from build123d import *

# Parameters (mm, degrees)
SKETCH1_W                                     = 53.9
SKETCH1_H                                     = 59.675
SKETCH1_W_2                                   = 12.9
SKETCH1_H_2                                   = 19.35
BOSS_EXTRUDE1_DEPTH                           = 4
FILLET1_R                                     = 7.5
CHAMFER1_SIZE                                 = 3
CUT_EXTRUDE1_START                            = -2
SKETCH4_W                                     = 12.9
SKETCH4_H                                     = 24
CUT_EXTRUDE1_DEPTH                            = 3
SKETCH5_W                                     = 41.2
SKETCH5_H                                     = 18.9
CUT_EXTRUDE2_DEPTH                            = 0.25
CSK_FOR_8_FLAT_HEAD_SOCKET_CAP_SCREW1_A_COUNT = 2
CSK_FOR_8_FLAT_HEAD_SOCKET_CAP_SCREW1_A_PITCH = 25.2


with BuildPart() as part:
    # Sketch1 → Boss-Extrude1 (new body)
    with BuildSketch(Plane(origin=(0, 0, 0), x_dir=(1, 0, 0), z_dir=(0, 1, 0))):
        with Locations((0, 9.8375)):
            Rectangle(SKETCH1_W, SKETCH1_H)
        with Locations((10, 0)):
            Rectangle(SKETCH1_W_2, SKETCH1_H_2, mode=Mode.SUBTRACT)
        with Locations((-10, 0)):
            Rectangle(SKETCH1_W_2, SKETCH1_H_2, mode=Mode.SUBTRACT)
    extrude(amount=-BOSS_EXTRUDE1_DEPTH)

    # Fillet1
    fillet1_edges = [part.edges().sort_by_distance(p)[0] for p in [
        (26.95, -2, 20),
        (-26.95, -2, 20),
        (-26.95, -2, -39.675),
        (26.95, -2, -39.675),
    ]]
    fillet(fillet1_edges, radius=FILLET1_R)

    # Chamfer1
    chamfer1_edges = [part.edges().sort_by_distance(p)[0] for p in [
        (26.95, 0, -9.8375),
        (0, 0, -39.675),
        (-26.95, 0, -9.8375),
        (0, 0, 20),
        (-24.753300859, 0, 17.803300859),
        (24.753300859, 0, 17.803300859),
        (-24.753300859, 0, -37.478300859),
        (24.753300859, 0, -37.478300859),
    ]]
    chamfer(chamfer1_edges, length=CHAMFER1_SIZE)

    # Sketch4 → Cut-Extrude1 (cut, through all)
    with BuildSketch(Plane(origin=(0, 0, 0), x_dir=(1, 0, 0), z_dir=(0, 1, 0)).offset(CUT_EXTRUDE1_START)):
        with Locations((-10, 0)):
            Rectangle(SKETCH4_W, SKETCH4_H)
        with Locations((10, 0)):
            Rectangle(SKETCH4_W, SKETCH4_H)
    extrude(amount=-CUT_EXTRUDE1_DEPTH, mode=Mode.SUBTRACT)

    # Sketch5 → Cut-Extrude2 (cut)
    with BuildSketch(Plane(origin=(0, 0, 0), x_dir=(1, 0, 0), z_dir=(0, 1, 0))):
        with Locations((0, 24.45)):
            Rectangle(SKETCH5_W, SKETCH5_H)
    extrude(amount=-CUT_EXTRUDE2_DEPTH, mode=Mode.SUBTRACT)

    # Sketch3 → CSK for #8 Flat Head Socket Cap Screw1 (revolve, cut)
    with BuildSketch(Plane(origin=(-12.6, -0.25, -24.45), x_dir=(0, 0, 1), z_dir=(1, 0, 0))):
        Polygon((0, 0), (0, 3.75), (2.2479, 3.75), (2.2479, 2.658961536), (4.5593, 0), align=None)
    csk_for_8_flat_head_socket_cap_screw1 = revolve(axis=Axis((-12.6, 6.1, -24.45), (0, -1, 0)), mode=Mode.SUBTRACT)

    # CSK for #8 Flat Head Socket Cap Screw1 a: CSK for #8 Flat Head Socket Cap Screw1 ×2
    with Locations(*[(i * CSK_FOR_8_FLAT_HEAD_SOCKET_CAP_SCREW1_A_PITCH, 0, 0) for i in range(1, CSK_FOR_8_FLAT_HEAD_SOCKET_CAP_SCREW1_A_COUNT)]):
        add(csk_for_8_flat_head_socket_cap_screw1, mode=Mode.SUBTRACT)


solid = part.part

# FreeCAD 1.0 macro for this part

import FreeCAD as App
import Part
import Sketcher

V = App.Vector
Q = App.Units.Quantity


def edges_at(feature, points):
    """Names of the edges that pass closest to the given points."""
    edges = feature.Shape.Edges
    near = lambda p: min(range(len(edges)), key=lambda i: edges[i].distToShape(Part.Vertex(*p))[0])
    return sorted({f"Edge{near(p) + 1}" for p in points})


def add_polygon(sketch, points):
    """Adds a closed chain of lines whose ends are joined by coincident constraints."""
    first, n = sketch.GeometryCount, len(points)
    for a, b in zip(points, points[1:] + points[:1]):
        sketch.addGeometry(Part.LineSegment(App.Vector(*a, 0), App.Vector(*b, 0)), False)
    for i in range(n):
        sketch.addConstraint(Sketcher.Constraint("Coincident", first + i, 2, first + (i + 1) % n, 1))

doc = App.newDocument("Part")
body = doc.addObject("PartDesign::Body", "Body")

# Sketch on XZ plane
sketch1 = body.newObject("Sketcher::SketchObject", "Sketch")
sketch1.AttachmentSupport = (doc.getObject("XZ_Plane"), [""])
sketch1.MapMode = "FlatFace"
add_polygon(sketch1, [(-26.95, -39.675), (-26.95, 20), (26.95, 20), (26.95, -39.675)])  # lines 0-3
add_polygon(sketch1, [(-3.55, 9.675), (-16.45, 9.675), (-16.45, -9.675), (-3.55, -9.675)])  # lines 4-7
add_polygon(sketch1, [(16.45, 9.675), (3.55, 9.675), (3.55, -9.675), (16.45, -9.675)])  # lines 8-11
sketch1.addConstraint(Sketcher.Constraint("Vertical", 0))
sketch1.addConstraint(Sketcher.Constraint("Horizontal", 1))
sketch1.addConstraint(Sketcher.Constraint("Vertical", 2))
sketch1.addConstraint(Sketcher.Constraint("Horizontal", 3))
sketch1.addConstraint(Sketcher.Constraint("Horizontal", 4))
sketch1.addConstraint(Sketcher.Constraint("Vertical", 5))
sketch1.addConstraint(Sketcher.Constraint("Horizontal", 6))
sketch1.addConstraint(Sketcher.Constraint("Vertical", 7))
sketch1.addConstraint(Sketcher.Constraint("Horizontal", 8))
sketch1.addConstraint(Sketcher.Constraint("Vertical", 9))
sketch1.addConstraint(Sketcher.Constraint("Horizontal", 10))
sketch1.addConstraint(Sketcher.Constraint("Vertical", 11))
sketch1.addConstraint(Sketcher.Constraint("Symmetric", 6, 2, 8, 2, -1, 1))
sketch1.addConstraint(Sketcher.Constraint("Symmetric", 4, 2, 10, 2, -1, 1))
sketch1.addConstraint(Sketcher.Constraint("Horizontal", 7, 2, 8, 2))
sketch1.addConstraint(Sketcher.Constraint("DistanceX", 1, 1, 1, 2, 53.9))
sketch1.addConstraint(Sketcher.Constraint("DistanceX", 4, 2, 4, 1, 12.9))
sketch1.addConstraint(Sketcher.Constraint("DistanceY", -1, 1, 0, 2, 20.0))
sketch1.addConstraint(Sketcher.Constraint("DistanceY", 3, 2, 5, 2, 30.0))
sketch1.addConstraint(Sketcher.Constraint("DistanceX", 4, 2, 8, 2, 20.0))
sketch1.addConstraint(Sketcher.Constraint("DistanceY", 5, 2, 5, 1, 19.35))
sketch1.addConstraint(Sketcher.Constraint("DistanceX", 0, 2, 4, 2, 10.5))
pad1 = body.newObject("PartDesign::Pad", "Pad")
pad1.Profile = sketch1
pad1.Length = 4
doc.recompute()

fillet = body.newObject("PartDesign::Fillet", "Fillet")
fillet.Base = (pad1, edges_at(pad1, [
    (26.95, -2, 20),
    (-26.95, -2, 20),
    (-26.95, -2, -39.675),
    (26.95, -2, -39.675),
]))
fillet.Radius = 7.5
doc.recompute()

chamfer = body.newObject("PartDesign::Chamfer", "Chamfer")
chamfer.Base = (fillet, edges_at(fillet, [
    (26.95, 0, -9.838),
    (0, 0, -39.675),
    (-26.95, 0, -9.838),
    (0, 0, 20),
    (-24.753, 0, 17.803),
    (24.753, 0, 17.803),
    (-24.753, 0, -37.478),
    (24.753, 0, -37.478),
]))
chamfer.Size = 3

# Sketch on XZ plane
sketch2 = body.newObject("Sketcher::SketchObject", "Sketch001")
sketch2.AttachmentSupport = (doc.getObject("XZ_Plane"), [""])
sketch2.MapMode = "FlatFace"
sketch2.AttachmentOffset = App.Placement(V(0, 0, 2), App.Rotation())
add_polygon(sketch2, [(-16.45, -12), (-16.45, 12), (-3.55, 12), (-3.55, -12)])  # lines 0-3
add_polygon(sketch2, [(3.55, -12), (3.55, 12), (16.45, 12), (16.45, -12)])  # lines 4-7
sketch2.addConstraint(Sketcher.Constraint("Vertical", 0))
sketch2.addConstraint(Sketcher.Constraint("Horizontal", 1))
sketch2.addConstraint(Sketcher.Constraint("Vertical", 2))
sketch2.addConstraint(Sketcher.Constraint("Horizontal", 3))
sketch2.addConstraint(Sketcher.Constraint("Vertical", 4))
sketch2.addConstraint(Sketcher.Constraint("Horizontal", 5))
sketch2.addConstraint(Sketcher.Constraint("Vertical", 6))
sketch2.addConstraint(Sketcher.Constraint("Horizontal", 7))
sketch2.addConstraint(Sketcher.Constraint("Symmetric", 2, 2, 4, 2, -1, 1))
sketch2.addConstraint(Sketcher.Constraint("Symmetric", 0, 2, 6, 2, -1, 1))
sketch2.addConstraint(Sketcher.Constraint("Horizontal", 1, 2, 4, 2))
sketch2.addConstraint(Sketcher.Constraint("DistanceY", 0, 1, 0, 2, 24.0))
sketch2.addConstraint(Sketcher.Constraint("DistanceX", 1, 1, 1, 2, 12.9))
sketch2.addConstraint(Sketcher.Constraint("DistanceX", 0, 2, 4, 2, 20.0))
pocket1 = body.newObject("PartDesign::Pocket", "Pocket")
pocket1.Profile = sketch2
pocket1.Type = "ThroughAll"
pocket1.Reversed = True

# Sketch on XZ plane
sketch3 = body.newObject("Sketcher::SketchObject", "Sketch002")
sketch3.AttachmentSupport = (doc.getObject("XZ_Plane"), [""])
sketch3.MapMode = "FlatFace"
add_polygon(sketch3, [(-20.6, -33.9), (-20.6, -15), (20.6, -15), (20.6, -33.9)])  # lines 0-3
sketch3.addConstraint(Sketcher.Constraint("Vertical", 0))
sketch3.addConstraint(Sketcher.Constraint("Horizontal", 1))
sketch3.addConstraint(Sketcher.Constraint("Vertical", 2))
sketch3.addConstraint(Sketcher.Constraint("Horizontal", 3))
sketch3.addConstraint(Sketcher.Constraint("DistanceX", 1, 1, 1, 2, 41.2))
sketch3.addConstraint(Sketcher.Constraint("DistanceY", 0, 1, 0, 2, 18.9))
sketch3.addConstraint(Sketcher.Constraint("DistanceY", 0, 2, -1, 1, 15.0))
sketch3.addConstraint(Sketcher.Constraint("DistanceX", 0, 2, -1, 1, 20.6))
pocket2 = body.newObject("PartDesign::Pocket", "Pocket001")
pocket2.Profile = sketch3
pocket2.Length = 0.25
pocket2.Reversed = True

# Sketch on YZ plane
sketch4 = body.newObject("Sketcher::SketchObject", "Sketch003")
sketch4.AttachmentSupport = (doc.getObject("YZ_Plane"), [""])
sketch4.MapMode = "FlatFace"
sketch4.AttachmentOffset = App.Placement(V(0, 0, -12.6), App.Rotation())
add_polygon(sketch4, [(-4, -24.45), (-0.25, -24.45), (-0.25, -19.8907), (-2.908962, -22.2021), (-4, -22.2021)])  # lines 0-4
sketch4.addGeometry(Part.LineSegment(V(-0.25, -24.45, 0), V(-4, -24.45, 0)), True)  # axis
sketch4.addConstraint(Sketcher.Constraint("Horizontal", 0))
sketch4.addConstraint(Sketcher.Constraint("Vertical", 1))
sketch4.addConstraint(Sketcher.Constraint("Horizontal", 3))
sketch4.addConstraint(Sketcher.Constraint("Vertical", 4))
sketch4.addConstraint(Sketcher.Constraint("Horizontal", 5))
sketch4.addConstraint(Sketcher.Constraint("Coincident", 5, 1, 0, 2))
sketch4.addConstraint(Sketcher.Constraint("Vertical", 3, 2, 5, 2))
sketch4.addConstraint(Sketcher.Constraint("Angle", 2, Q("-139 deg")))
sketch4.addConstraint(Sketcher.Constraint("DistanceX", 3, 2, -1, 1, 4.0))
sketch4.addConstraint(Sketcher.Constraint("DistanceX", 0, 1, 0, 2, 3.75))
sketch4.addConstraint(Sketcher.Constraint("DistanceY", 0, 2, -1, 1, 24.45))
sketch4.addConstraint(Sketcher.Constraint("DistanceY", 1, 1, 1, 2, 4.5593))
sketch4.addConstraint(Sketcher.Constraint("DistanceY", 4, 2, 4, 1, 2.2479))
groove = body.newObject("PartDesign::Groove", "Groove")
groove.Profile = sketch4
groove.ReferenceAxis = (sketch4, ["Axis0"])
groove.Angle = 360
doc.recompute()

linearpattern = body.newObject("PartDesign::LinearPattern", "LinearPattern")
linearpattern.Originals = [groove]
linearpattern.Direction = (doc.getObject("X_Axis"), [""])
linearpattern.Mode = "offset"
linearpattern.Offset = 25.2
linearpattern.Occurrences = 2
body.Tip = linearpattern

doc.recompute()
